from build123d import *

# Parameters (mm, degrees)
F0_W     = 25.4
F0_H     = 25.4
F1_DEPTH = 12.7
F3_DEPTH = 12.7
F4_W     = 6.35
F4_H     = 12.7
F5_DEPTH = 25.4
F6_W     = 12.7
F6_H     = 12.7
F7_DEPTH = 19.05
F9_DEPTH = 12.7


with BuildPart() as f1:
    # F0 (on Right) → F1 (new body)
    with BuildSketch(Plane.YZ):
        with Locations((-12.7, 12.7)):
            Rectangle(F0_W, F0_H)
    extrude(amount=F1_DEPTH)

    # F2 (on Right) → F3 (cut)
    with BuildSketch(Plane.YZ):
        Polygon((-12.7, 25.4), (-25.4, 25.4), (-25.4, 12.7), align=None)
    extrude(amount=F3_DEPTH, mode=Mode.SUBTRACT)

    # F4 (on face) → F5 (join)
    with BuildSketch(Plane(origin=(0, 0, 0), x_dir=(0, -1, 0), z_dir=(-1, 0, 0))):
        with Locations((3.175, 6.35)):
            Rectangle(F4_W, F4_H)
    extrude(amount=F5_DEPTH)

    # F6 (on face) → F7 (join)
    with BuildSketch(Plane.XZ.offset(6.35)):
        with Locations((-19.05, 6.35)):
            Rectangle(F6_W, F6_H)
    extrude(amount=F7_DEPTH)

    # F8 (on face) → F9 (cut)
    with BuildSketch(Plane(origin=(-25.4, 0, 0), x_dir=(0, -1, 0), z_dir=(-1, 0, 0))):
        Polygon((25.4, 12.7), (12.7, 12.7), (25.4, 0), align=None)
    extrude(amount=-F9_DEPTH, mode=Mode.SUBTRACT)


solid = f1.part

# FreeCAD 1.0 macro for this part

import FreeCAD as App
import Part
import Sketcher

V = App.Vector
Q = App.Units.Quantity

doc = App.newDocument("Part")
body = doc.addObject("PartDesign::Body", "Body")

sketch1 = doc.addObject("Sketcher::SketchObject", "Sketch")
body.addObject(sketch1)
sketch1.AttachmentSupport = (doc.YZ_Plane, [""])
sketch1.MapMode = "FlatFace"
sketch1.addGeometry(Part.LineSegment(V(-25, 25, 0), V(-25, 0, 0)), False)
sketch1.addGeometry(Part.LineSegment(V(-25, 0, 0), V(0, 0, 0)), False)
sketch1.addGeometry(Part.LineSegment(V(0, 0, 0), V(0, 25, 0)), False)
sketch1.addGeometry(Part.LineSegment(V(0, 25, 0), V(-25, 25, 0)), False)
sketch1.addConstraint(Sketcher.Constraint("Coincident", 0, 2, 1, 1))
sketch1.addConstraint(Sketcher.Constraint("Coincident", 1, 2, 2, 1))
sketch1.addConstraint(Sketcher.Constraint("Coincident", 2, 2, 3, 1))
sketch1.addConstraint(Sketcher.Constraint("Coincident", 3, 2, 0, 1))
sketch1.addConstraint(Sketcher.Constraint("Vertical", 0))
sketch1.addConstraint(Sketcher.Constraint("Horizontal", 1))
sketch1.addConstraint(Sketcher.Constraint("Vertical", 2))
sketch1.addConstraint(Sketcher.Constraint("Horizontal", 3))
sketch1.addConstraint(Sketcher.Constraint("Coincident", 1, 2, -1, 1))
sketch1.addConstraint(Sketcher.Constraint("Equal", 3, 0))
sketch1.addConstraint(Sketcher.Constraint("DistanceX", 1, 1, 1, 2, Q("1 in")))
pad1 = doc.addObject("PartDesign::Pad", "Pad")
body.addObject(pad1)
pad1.Profile = sketch1
pad1.Length = Q("0.5 in")

sketch2 = doc.addObject("Sketcher::SketchObject", "Sketch001")
body.addObject(sketch2)
sketch2.AttachmentSupport = (doc.YZ_Plane, [""])
sketch2.MapMode = "FlatFace"
sketch2.addGeometry(Part.LineSegment(V(-13, 25, 0), V(-25, 25, 0)), False)
sketch2.addGeometry(Part.LineSegment(V(-25, 25, 0), V(-25, 13, 0)), False)
sketch2.addGeometry(Part.LineSegment(V(-25, 13, 0), V(-13, 25, 0)), False)
sketch2.addConstraint(Sketcher.Constraint("Coincident", 0, 2, 1, 1))
sketch2.addConstraint(Sketcher.Constraint("Coincident", 1, 2, 2, 1))
sketch2.addConstraint(Sketcher.Constraint("Coincident", 2, 2, 0, 1))
sketch2.addConstraint(Sketcher.Constraint("Horizontal", 0))
sketch2.addConstraint(Sketcher.Constraint("Vertical", 1))
sketch2.addConstraint(Sketcher.Constraint("Equal", 0, 1))
sketch2.addConstraint(Sketcher.Constraint("DistanceX", 0, 2, 0, 1, Q("0.5 in")))
sketch2.addConstraint(Sketcher.Constraint("DistanceX", 0, 2, -1, 1, Q("1 in")))
sketch2.addConstraint(Sketcher.Constraint("DistanceY", -1, 1, 0, 2, Q("1 in")))
pocket1 = doc.addObject("PartDesign::Pocket", "Pocket")
body.addObject(pocket1)
pocket1.Profile = sketch2
pocket1.Length = Q("0.5 in")
pocket1.Reversed = True

sketch3 = doc.addObject("Sketcher::SketchObject", "Sketch002")
body.addObject(sketch3)
sketch3.AttachmentSupport = (doc.YZ_Plane, [""])
sketch3.MapMode = "FlatFace"
sketch3.addGeometry(Part.LineSegment(V(0, 13, 0), V(0, 0, 0)), False)
sketch3.addGeometry(Part.LineSegment(V(0, 0, 0), V(-6, 0, 0)), False)
sketch3.addGeometry(Part.LineSegment(V(-6, 0, 0), V(-6, 13, 0)), False)
sketch3.addGeometry(Part.LineSegment(V(-6, 13, 0), V(0, 13, 0)), False)
sketch3.addConstraint(Sketcher.Constraint("Coincident", 0, 2, 1, 1))
sketch3.addConstraint(Sketcher.Constraint("Coincident", 1, 2, 2, 1))
sketch3.addConstraint(Sketcher.Constraint("Coincident", 2, 2, 3, 1))
sketch3.addConstraint(Sketcher.Constraint("Coincident", 3, 2, 0, 1))
sketch3.addConstraint(Sketcher.Constraint("Vertical", 0))
sketch3.addConstraint(Sketcher.Constraint("Horizontal", 1))
sketch3.addConstraint(Sketcher.Constraint("Vertical", 2))
sketch3.addConstraint(Sketcher.Constraint("Horizontal", 3))
sketch3.addConstraint(Sketcher.Constraint("Coincident", 0, 2, -1, 1))
sketch3.addConstraint(Sketcher.Constraint("DistanceY", 0, 2, 0, 1, Q("0.5 in")))
sketch3.addConstraint(Sketcher.Constraint("DistanceX", 1, 2, 1, 1, Q("0.25 in")))
pad2 = doc.addObject("PartDesign::Pad", "Pad001")
body.addObject(pad2)
pad2.Profile = sketch3
pad2.Length = Q("1 in")
pad2.Reversed = True

sketch4 = doc.addObject("Sketcher::SketchObject", "Sketch003")
body.addObject(sketch4)
sketch4.AttachmentSupport = (doc.XZ_Plane, [""])
sketch4.MapMode = "FlatFace"
sketch4.AttachmentOffset = App.Placement(V(0, 0, 0.25 * 25.4), App.Rotation())
sketch4.addGeometry(Part.LineSegment(V(-25, 13, 0), V(-25, 0, 0)), False)
sketch4.addGeometry(Part.LineSegment(V(-25, 0, 0), V(-13, 0, 0)), False)
sketch4.addGeometry(Part.LineSegment(V(-13, 0, 0), V(-13, 13, 0)), False)
sketch4.addGeometry(Part.LineSegment(V(-13, 13, 0), V(-25, 13, 0)), False)
sketch4.addConstraint(Sketcher.Constraint("Coincident", 0, 2, 1, 1))
sketch4.addConstraint(Sketcher.Constraint("Coincident", 1, 2, 2, 1))
sketch4.addConstraint(Sketcher.Constraint("Coincident", 2, 2, 3, 1))
sketch4.addConstraint(Sketcher.Constraint("Coincident", 3, 2, 0, 1))
sketch4.addConstraint(Sketcher.Constraint("Vertical", 0))
sketch4.addConstraint(Sketcher.Constraint("Horizontal", 1))
sketch4.addConstraint(Sketcher.Constraint("Vertical", 2))
sketch4.addConstraint(Sketcher.Constraint("Horizontal", 3))
sketch4.addConstraint(Sketcher.Constraint("PointOnObject", 0, 2, -1))
sketch4.addConstraint(Sketcher.Constraint("Equal", 3, 0))
sketch4.addConstraint(Sketcher.Constraint("DistanceX", 1, 1, 1, 2, Q("0.5 in")))
sketch4.addConstraint(Sketcher.Constraint("DistanceX", 0, 2, -1, 1, Q("1 in")))
pad3 = doc.addObject("PartDesign::Pad", "Pad002")
body.addObject(pad3)
pad3.Profile = sketch4
pad3.Length = Q("0.75 in")

sketch5 = doc.addObject("Sketcher::SketchObject", "Sketch004")
body.addObject(sketch5)
sketch5.AttachmentSupport = (doc.YZ_Plane, [""])
sketch5.MapMode = "FlatFace"
sketch5.AttachmentOffset = App.Placement(V(0, 0, -1 * 25.4), App.Rotation())
sketch5.addGeometry(Part.LineSegment(V(-25, 13, 0), V(-13, 13, 0)), False)
sketch5.addGeometry(Part.LineSegment(V(-13, 13, 0), V(-25, 0, 0)), False)
sketch5.addGeometry(Part.LineSegment(V(-25, 0, 0), V(-25, 13, 0)), False)
sketch5.addConstraint(Sketcher.Constraint("Coincident", 0, 2, 1, 1))
sketch5.addConstraint(Sketcher.Constraint("Coincident", 1, 2, 2, 1))
sketch5.addConstraint(Sketcher.Constraint("Coincident", 2, 2, 0, 1))
sketch5.addConstraint(Sketcher.Constraint("Horizontal", 0))
sketch5.addConstraint(Sketcher.Constraint("Vertical", 2))
sketch5.addConstraint(Sketcher.Constraint("PointOnObject", 1, 2, -1))
sketch5.addConstraint(Sketcher.Constraint("Equal", 0, 2))
sketch5.addConstraint(Sketcher.Constraint("DistanceX", 0, 1, 0, 2, Q("0.5 in")))
sketch5.addConstraint(Sketcher.Constraint("DistanceX", 1, 2, -1, 1, Q("1 in")))
pocket2 = doc.addObject("PartDesign::Pocket", "Pocket001")
body.addObject(pocket2)
pocket2.Profile = sketch5
pocket2.Length = Q("0.5 in")
pocket2.Reversed = True

doc.recompute()
